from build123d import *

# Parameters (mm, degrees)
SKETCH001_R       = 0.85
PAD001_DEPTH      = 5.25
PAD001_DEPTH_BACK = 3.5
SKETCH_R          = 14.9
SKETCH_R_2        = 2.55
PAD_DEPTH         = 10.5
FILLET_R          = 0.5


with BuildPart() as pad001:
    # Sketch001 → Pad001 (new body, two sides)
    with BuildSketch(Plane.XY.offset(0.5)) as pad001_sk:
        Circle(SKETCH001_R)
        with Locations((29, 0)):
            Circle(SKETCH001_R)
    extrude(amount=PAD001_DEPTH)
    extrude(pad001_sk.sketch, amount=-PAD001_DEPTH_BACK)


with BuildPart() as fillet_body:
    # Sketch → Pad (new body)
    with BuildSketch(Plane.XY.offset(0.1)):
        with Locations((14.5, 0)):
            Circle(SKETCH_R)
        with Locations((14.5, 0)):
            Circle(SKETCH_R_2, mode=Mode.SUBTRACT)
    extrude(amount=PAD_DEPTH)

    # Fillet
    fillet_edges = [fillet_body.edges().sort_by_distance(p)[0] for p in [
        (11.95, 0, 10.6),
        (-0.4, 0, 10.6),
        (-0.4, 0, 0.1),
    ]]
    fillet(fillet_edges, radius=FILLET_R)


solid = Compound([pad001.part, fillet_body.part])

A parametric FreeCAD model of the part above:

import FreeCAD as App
import Part
import Sketcher

V = App.Vector


def edges_at(feature, points):
    """Names of the edges that pass closest to the given points."""
    edges = feature.Shape.Edges
    near = lambda p: min(range(len(edges)), key=lambda i: edges[i].distToShape(Part.Vertex(*p))[0])
    return sorted({f"Edge{near(p) + 1}" for p in points})

doc = App.newDocument("Part")
body = doc.addObject("PartDesign::Body", "Body")
body.AllowCompound = True

sketch1 = body.newObject("Sketcher::SketchObject", "Sketch")
sketch1.AttachmentSupport = (doc.getObject("XY_Plane"), [""])
sketch1.MapMode = "FlatFace"
sketch1.AttachmentOffset = App.Placement(V(0, 0, 0.5), App.Rotation())
sketch1.addGeometry([
    Part.Circle(V(0, 0, 0), V(0, 0, 1), 0.8),
    Part.Circle(V(29, 0, 0), V(0, 0, 1), 0.8),
], False)
sketch1.addConstraint([
    Sketcher.Constraint("Coincident", 0, 3, -1, 1),
    Sketcher.Constraint("Equal", 0, 1),
    Sketcher.Constraint("PointOnObject", 1, 3, -1),
    Sketcher.Constraint("Diameter", 0, 1.7),
    Sketcher.Constraint("DistanceX", -1, 1, 1, 3, 29.0),
])
pad1 = body.newObject("PartDesign::Pad", "Pad")
pad1.Profile = sketch1
pad1.Type = "TwoLengths"
pad1.Length = 5.25
pad1.Length2 = 3.5
body2 = doc.addObject("PartDesign::Body", "Body001")

sketch2 = body2.newObject("Sketcher::SketchObject", "Sketch001")
sketch2.AttachmentSupport = (doc.getObject("XY_Plane001"), [""])
sketch2.MapMode = "FlatFace"
sketch2.AttachmentOffset = App.Placement(V(0, 0, 0.1), App.Rotation())
sketch2.addGeometry([
    Part.Circle(V(14.5, 0, 0), V(0, 0, 1), 14.9),
    Part.Circle(V(14.5, 0, 0), V(0, 0, 1), 2.5),
], False)
sketch2.addConstraint([
    Sketcher.Constraint("Coincident", 1, 3, 0, 3),
    Sketcher.Constraint("PointOnObject", 0, 3, -1),
    Sketcher.Constraint("Diameter", 0, 29.8),
    Sketcher.Constraint("Diameter", 1, 5.1),
    Sketcher.Constraint("DistanceX", -1, 1, 0, 3, 14.5),
])
pad2 = body2.newObject("PartDesign::Pad", "Pad001")
pad2.Profile = sketch2
pad2.Length = 10.5
doc.recompute()

fillet = body2.newObject("PartDesign::Fillet", "Fillet")
fillet.Base = (pad2, edges_at(pad2, [(11.95, 0, 10.6), (-0.4, 0, 10.6), (-0.4, 0, 0.1)]))
fillet.Radius = 0.5

doc.recompute()
